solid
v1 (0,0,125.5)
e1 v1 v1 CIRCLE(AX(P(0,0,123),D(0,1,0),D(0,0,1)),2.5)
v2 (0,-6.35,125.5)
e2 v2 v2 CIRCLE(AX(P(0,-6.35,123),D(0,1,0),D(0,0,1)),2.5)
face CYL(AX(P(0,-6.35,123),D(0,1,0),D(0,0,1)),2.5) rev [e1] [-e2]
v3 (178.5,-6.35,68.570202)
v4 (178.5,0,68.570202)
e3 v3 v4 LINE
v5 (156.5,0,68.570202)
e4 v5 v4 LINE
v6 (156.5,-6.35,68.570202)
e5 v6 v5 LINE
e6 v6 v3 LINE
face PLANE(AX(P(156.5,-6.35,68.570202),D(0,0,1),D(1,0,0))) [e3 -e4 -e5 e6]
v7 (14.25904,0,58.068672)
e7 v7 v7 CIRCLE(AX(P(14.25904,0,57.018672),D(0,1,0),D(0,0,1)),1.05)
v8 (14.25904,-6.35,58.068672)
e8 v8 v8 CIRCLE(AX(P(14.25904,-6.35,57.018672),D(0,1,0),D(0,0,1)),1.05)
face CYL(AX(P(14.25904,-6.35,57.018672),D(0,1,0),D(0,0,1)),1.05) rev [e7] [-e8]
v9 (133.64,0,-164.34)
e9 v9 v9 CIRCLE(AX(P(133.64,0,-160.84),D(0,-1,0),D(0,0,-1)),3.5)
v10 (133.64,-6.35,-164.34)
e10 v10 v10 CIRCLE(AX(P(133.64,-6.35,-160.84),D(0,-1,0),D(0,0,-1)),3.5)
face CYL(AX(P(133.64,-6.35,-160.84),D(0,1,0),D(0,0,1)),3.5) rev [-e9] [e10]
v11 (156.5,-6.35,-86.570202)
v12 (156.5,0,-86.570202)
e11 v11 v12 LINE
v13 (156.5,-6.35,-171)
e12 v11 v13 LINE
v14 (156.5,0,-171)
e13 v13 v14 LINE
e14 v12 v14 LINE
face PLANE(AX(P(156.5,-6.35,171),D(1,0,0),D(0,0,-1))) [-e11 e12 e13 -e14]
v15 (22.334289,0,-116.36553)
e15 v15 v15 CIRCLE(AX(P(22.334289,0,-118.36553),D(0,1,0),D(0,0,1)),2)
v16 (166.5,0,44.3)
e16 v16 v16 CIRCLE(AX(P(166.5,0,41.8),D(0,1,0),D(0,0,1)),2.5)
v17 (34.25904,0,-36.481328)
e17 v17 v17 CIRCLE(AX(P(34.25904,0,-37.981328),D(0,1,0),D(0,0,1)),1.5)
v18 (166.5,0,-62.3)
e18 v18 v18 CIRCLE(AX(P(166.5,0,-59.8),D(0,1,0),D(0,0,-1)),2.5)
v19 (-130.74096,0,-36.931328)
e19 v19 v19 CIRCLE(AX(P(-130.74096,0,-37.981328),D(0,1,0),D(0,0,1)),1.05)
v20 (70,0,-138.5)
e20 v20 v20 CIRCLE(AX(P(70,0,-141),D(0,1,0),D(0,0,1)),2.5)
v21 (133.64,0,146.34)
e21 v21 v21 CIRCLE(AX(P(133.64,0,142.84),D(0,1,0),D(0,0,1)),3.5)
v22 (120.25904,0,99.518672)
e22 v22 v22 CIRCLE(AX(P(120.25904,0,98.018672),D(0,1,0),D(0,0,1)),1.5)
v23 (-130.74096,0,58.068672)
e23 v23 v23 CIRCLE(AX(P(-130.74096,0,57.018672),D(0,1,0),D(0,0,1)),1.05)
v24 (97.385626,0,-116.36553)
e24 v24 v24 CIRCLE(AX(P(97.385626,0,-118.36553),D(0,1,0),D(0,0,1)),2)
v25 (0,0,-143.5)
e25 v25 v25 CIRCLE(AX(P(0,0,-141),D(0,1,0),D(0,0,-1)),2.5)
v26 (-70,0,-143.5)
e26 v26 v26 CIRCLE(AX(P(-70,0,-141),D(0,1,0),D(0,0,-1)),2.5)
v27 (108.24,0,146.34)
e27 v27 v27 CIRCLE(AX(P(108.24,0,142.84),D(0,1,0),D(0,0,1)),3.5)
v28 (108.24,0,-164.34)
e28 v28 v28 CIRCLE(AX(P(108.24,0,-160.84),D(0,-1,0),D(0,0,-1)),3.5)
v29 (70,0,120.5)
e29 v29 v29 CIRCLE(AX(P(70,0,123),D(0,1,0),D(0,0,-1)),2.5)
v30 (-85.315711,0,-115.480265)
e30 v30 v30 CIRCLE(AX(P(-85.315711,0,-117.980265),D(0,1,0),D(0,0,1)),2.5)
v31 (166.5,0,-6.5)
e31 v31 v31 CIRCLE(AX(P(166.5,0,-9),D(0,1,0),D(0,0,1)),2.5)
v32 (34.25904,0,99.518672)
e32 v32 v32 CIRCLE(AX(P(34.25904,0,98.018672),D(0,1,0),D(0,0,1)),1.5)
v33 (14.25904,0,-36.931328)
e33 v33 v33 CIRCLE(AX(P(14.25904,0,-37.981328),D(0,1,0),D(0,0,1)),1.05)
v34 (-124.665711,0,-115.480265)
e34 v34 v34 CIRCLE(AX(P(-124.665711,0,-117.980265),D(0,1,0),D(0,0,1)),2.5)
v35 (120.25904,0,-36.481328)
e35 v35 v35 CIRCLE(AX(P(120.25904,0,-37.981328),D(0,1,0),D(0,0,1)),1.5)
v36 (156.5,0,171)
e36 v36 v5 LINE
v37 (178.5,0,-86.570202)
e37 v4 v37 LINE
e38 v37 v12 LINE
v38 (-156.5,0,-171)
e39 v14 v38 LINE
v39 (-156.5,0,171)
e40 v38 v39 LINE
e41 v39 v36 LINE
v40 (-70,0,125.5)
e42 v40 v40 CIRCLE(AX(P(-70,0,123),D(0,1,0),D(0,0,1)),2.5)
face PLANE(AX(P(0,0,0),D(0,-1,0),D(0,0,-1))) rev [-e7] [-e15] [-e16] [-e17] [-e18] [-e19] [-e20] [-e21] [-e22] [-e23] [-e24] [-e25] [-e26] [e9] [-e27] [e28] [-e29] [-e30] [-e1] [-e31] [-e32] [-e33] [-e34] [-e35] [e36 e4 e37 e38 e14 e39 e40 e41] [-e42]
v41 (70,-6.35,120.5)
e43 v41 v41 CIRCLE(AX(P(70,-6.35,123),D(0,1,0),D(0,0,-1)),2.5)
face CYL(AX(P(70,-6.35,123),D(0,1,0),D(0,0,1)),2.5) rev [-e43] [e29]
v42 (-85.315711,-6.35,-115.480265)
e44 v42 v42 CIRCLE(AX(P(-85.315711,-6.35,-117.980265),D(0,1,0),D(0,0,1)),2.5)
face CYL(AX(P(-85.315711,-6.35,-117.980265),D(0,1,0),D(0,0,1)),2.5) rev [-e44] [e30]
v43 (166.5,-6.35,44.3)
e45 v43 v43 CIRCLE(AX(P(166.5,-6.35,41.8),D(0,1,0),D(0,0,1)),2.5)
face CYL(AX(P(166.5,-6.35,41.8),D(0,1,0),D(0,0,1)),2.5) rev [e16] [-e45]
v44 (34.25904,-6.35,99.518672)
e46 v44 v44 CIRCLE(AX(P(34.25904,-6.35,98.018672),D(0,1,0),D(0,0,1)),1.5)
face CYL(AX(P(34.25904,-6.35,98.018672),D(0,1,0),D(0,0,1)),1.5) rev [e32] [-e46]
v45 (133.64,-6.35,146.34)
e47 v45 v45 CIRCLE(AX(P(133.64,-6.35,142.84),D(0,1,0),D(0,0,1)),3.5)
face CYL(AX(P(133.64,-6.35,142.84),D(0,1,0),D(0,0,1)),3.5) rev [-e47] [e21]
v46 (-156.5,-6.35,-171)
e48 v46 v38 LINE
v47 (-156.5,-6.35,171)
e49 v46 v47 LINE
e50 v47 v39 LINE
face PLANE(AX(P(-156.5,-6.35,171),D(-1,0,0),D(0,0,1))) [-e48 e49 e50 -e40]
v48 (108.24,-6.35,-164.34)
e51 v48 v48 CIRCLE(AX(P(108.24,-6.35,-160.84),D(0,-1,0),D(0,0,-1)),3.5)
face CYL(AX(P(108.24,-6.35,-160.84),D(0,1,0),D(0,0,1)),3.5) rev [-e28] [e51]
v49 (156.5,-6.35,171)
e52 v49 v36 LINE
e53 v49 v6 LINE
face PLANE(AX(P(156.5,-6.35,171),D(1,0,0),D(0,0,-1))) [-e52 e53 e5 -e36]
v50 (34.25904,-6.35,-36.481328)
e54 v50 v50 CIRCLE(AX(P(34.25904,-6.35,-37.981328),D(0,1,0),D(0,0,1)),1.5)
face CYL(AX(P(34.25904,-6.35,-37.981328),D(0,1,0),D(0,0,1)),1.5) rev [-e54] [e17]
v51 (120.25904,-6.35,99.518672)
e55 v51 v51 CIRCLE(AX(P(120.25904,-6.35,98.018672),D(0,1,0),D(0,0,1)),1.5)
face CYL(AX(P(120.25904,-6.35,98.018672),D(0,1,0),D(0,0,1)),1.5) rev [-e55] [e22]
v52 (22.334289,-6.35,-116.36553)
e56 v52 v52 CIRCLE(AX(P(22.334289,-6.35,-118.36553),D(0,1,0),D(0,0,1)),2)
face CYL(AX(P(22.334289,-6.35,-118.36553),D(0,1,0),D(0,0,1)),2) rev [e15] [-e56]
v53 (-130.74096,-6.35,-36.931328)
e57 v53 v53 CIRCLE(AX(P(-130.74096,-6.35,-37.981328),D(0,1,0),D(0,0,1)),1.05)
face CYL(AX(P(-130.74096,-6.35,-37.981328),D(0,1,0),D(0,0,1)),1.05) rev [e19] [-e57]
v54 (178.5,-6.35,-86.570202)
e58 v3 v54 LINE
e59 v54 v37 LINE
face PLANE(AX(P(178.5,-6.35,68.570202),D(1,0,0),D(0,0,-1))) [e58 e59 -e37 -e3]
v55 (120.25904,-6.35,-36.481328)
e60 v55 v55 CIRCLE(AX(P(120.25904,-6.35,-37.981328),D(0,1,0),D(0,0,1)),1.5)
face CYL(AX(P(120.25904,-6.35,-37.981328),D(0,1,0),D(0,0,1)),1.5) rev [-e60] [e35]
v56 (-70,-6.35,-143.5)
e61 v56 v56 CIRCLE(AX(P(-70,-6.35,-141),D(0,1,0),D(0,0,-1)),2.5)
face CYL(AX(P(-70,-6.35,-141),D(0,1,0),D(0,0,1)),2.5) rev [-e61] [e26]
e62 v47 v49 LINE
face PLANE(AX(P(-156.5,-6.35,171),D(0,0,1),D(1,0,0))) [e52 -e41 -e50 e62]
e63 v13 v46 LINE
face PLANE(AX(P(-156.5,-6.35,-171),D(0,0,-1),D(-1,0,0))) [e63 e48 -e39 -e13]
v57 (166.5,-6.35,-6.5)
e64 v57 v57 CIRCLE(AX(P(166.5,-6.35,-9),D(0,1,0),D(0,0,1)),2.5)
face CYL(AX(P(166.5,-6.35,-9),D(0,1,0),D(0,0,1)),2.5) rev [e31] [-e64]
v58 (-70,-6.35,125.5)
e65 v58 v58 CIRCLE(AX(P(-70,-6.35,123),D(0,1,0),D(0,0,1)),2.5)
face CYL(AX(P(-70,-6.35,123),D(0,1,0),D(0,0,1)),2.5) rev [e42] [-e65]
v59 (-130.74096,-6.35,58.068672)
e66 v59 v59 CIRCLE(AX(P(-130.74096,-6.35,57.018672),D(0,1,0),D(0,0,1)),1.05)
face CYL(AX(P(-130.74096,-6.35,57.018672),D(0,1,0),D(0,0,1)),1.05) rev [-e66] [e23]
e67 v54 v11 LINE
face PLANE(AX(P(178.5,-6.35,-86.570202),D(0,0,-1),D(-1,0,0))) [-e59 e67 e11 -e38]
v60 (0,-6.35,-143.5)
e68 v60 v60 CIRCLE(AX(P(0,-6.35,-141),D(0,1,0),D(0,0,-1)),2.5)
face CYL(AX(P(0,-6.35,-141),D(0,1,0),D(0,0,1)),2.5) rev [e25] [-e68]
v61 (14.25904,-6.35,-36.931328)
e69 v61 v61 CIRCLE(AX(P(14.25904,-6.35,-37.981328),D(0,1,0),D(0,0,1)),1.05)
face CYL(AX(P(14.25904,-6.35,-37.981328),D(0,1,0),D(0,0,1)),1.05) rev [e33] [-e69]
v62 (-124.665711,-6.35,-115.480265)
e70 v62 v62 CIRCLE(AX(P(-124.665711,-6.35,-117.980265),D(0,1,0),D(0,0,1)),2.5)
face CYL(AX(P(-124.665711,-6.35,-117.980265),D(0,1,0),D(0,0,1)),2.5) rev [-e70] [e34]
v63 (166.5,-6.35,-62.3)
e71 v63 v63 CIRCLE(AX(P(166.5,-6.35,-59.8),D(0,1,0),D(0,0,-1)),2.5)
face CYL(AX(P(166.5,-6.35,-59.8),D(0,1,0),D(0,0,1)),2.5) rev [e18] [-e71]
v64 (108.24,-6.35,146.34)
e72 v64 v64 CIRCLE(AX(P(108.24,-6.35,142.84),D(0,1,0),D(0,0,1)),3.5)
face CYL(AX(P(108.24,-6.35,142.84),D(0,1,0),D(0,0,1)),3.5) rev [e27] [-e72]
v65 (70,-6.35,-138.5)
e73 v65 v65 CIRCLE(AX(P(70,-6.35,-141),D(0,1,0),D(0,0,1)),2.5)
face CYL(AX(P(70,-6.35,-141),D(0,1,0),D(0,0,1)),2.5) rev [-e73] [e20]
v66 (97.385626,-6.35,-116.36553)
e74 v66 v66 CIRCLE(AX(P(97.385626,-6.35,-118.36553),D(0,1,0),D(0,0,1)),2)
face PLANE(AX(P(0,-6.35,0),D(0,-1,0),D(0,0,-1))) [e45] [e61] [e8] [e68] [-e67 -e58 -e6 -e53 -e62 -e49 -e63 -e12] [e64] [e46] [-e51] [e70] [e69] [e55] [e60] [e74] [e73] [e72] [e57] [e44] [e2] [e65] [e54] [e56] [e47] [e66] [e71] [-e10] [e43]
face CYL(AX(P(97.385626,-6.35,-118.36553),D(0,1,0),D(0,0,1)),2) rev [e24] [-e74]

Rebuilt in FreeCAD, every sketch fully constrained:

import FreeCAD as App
import Part
import Sketcher
Q = App.Units.Quantity


def add_polygon(sketch, points):
    """Adds a closed chain of lines whose ends are joined by coincident constraints."""
    first, n = sketch.GeometryCount, len(points)
    for a, b in zip(points, points[1:] + points[:1]):
        sketch.addGeometry(Part.LineSegment(App.Vector(*a, 0), App.Vector(*b, 0)), False)
    for i in range(n):
        sketch.addConstraint(Sketcher.Constraint("Coincident", first + i, 2, first + (i + 1) % n, 1))

doc = App.newDocument("Part")
body = doc.addObject("PartDesign::Body", "Body")

sketch1 = body.newObject("Sketcher::SketchObject", "Sketch")
sketch1.AttachmentSupport = (doc.getObject("XZ_Plane"), [""])
sketch1.MapMode = "FlatFace"
add_polygon(sketch1, [(-156, -171), (-156, 171), (156, 171), (156, -171)])
sketch1.addConstraint([
    Sketcher.Constraint("Vertical", 0),
    Sketcher.Constraint("Horizontal", 1),
    Sketcher.Constraint("Vertical", 2),
    Sketcher.Constraint("Horizontal", 3),
    Sketcher.Constraint("Symmetric", 0, 2, 2, 2, -1, 1),
    Sketcher.Constraint("DistanceX", 1, 1, 1, 2, Q("313 mm")),
    Sketcher.Constraint("DistanceY", 0, 1, 0, 2, Q("342 mm")),
])
pad1 = body.newObject("PartDesign::Pad", "Pad")
pad1.Profile = sketch1
pad1.Length = 6.35

sketch2 = body.newObject("Sketcher::SketchObject", "Sketch001")
sketch2.AttachmentSupport = (doc.getObject("XZ_Plane"), [""])
sketch2.MapMode = "FlatFace"
add_polygon(sketch2, [(156.5, -86.6), (156.5, 68.6), (178.5, 68.6), (178.5, -86.6)])
sketch2.addGeometry(Part.Circle(App.Vector(166.5, 41.8, 0), App.Vector(0, 0, 1), 2.5), False)
sketch2.addGeometry(Part.Circle(App.Vector(166.5, -9, 0), App.Vector(0, 0, 1), 2.5), False)
sketch2.addGeometry(Part.Circle(App.Vector(166.5, -59.8, 0), App.Vector(0, 0, 1), 2.5), False)
sketch2.addConstraint([
    Sketcher.Constraint("Vertical", 0),
    Sketcher.Constraint("Horizontal", 1),
    Sketcher.Constraint("Vertical", 2),
    Sketcher.Constraint("Horizontal", 3),
    Sketcher.Constraint("Equal", 4, 5),
    Sketcher.Constraint("Equal", 5, 6),
    Sketcher.Constraint("Vertical", 4, 3, 5, 3),
    Sketcher.Constraint("Vertical", 5, 3, 6, 3),
    Sketcher.Constraint("Diameter", 4, Q("5 mm")),
    Sketcher.Constraint("DistanceX", 1, 1, 1, 2, Q("22 mm")),
    Sketcher.Constraint("DistanceY", 5, 3, -1, 1, Q("9 mm")),
    Sketcher.Constraint("DistanceX", 0, 2, 4, 3, Q("10 mm")),
    Sketcher.Constraint("DistanceX", -1, 1, 4, 3, Q("166.5 mm")),
    Sketcher.Constraint("DistanceY", -1, 1, 4, 3, Q("41.8 mm")),
    Sketcher.Constraint("DistanceY", 6, 3, -1, 1, Q("59.8 mm")),
    Sketcher.Constraint("DistanceY", -1, 1, 0, 2, Q("68.570202 mm")),
    Sketcher.Constraint("DistanceY", 2, 2, -1, 1, Q("86.570202 mm")),
])
pad2 = body.newObject("PartDesign::Pad", "Pad001")
pad2.Profile = sketch2
pad2.Length = 6.35

sketch3 = body.newObject("Sketcher::SketchObject", "Sketch002")
sketch3.AttachmentSupport = (doc.getObject("XZ_Plane"), [""])
sketch3.MapMode = "FlatFace"
sketch3.addGeometry([
    Part.Circle(App.Vector(0, 123, 0), App.Vector(0, 0, 1), 2.5),
    Part.Circle(App.Vector(-70, 123, 0), App.Vector(0, 0, 1), 2.5),
    Part.Circle(App.Vector(70, 123, 0), App.Vector(0, 0, 1), 2.5),
    Part.Circle(App.Vector(-70, -141, 0), App.Vector(0, 0, 1), 2.5),
    Part.Circle(App.Vector(0, -141, 0), App.Vector(0, 0, 1), 2.5),
    Part.Circle(App.Vector(70, -141, 0), App.Vector(0, 0, 1), 2.5),
], False)
sketch3.addConstraint([
    Sketcher.Constraint("Equal", 0, 1),
    Sketcher.Constraint("Equal", 1, 2),
    Sketcher.Constraint("Equal", 2, 3),
    Sketcher.Constraint("Equal", 3, 4),
    Sketcher.Constraint("Equal", 4, 5),
    Sketcher.Constraint("Symmetric", 1, 3, 2, 3, -2),
    Sketcher.Constraint("Symmetric", 3, 3, 5, 3, -2),
    Sketcher.Constraint("PointOnObject", 0, 3, -2),
    Sketcher.Constraint("PointOnObject", 4, 3, -2),
    Sketcher.Constraint("Horizontal", 0, 3, 1, 3),
    Sketcher.Constraint("Horizontal", 3, 3, 4, 3),
    Sketcher.Constraint("Vertical", 1, 3, 3, 3),
    Sketcher.Constraint("Diameter", 0, Q("5 mm")),
    Sketcher.Constraint("DistanceY", -1, 1, 0, 3, Q("123 mm")),
    Sketcher.Constraint("DistanceX", 1, 3, -1, 1, Q("70 mm")),
    Sketcher.Constraint("DistanceY", 3, 3, -1, 1, Q("141 mm")),
])
pocket1 = body.newObject("PartDesign::Pocket", "Pocket")
pocket1.Profile = sketch3
pocket1.Type = "ThroughAll"
pocket1.Reversed = True

sketch4 = body.newObject("Sketcher::SketchObject", "Sketch003")
sketch4.AttachmentSupport = (doc.getObject("XZ_Plane"), [""])
sketch4.MapMode = "FlatFace"
sketch4.addGeometry([
    Part.Circle(App.Vector(133.6, 142.8, 0), App.Vector(0, 0, 1), 3.5),
    Part.Circle(App.Vector(108.2, 142.8, 0), App.Vector(0, 0, 1), 3.5),
], False)
sketch4.addConstraint([
    Sketcher.Constraint("Equal", 0, 1),
    Sketcher.Constraint("Horizontal", 0, 3, 1, 3),
    Sketcher.Constraint("Diameter", 0, Q("7 mm")),
    Sketcher.Constraint("DistanceX", 1, 3, 0, 3, Q("25.4 mm")),
    Sketcher.Constraint("DistanceX", -1, 1, 0, 3, Q("133.64 mm")),
    Sketcher.Constraint("DistanceY", -1, 1, 0, 3, Q("142.84 mm")),
])
pocket2 = body.newObject("PartDesign::Pocket", "Pocket001")
pocket2.Profile = sketch4
pocket2.Type = "ThroughAll"
pocket2.Reversed = True
doc.recompute()

datumplane = body.newObject("PartDesign::Plane", "DatumPlane")
datumplane.AttachmentSupport = (doc.getObject("XY_Plane"), [""])
datumplane.MapMode = "FlatFace"
datumplane.AttachmentOffset = App.Placement(App.Vector(0, 0, -9), App.Rotation())
mirrored = body.newObject("PartDesign::Mirrored", "Mirrored")
mirrored.Originals = [pocket2]
mirrored.MirrorPlane = (datumplane, [""])
body.Tip = mirrored

sketch5 = body.newObject("Sketcher::SketchObject", "Sketch004")
sketch5.AttachmentSupport = (doc.getObject("XZ_Plane"), [""])
sketch5.MapMode = "FlatFace"
sketch5.addGeometry([
    Part.Circle(App.Vector(97.4, -118.4, 0), App.Vector(0, 0, 1), 2),
    Part.Circle(App.Vector(22.3, -118.4, 0), App.Vector(0, 0, 1), 2),
    Part.Circle(App.Vector(120.3, 98, 0), App.Vector(0, 0, 1), 1.5),
    Part.Circle(App.Vector(34.3, 98, 0), App.Vector(0, 0, 1), 1.5),
    Part.Circle(App.Vector(34.3, -38, 0), App.Vector(0, 0, 1), 1.5),
    Part.Circle(App.Vector(120.3, -38, 0), App.Vector(0, 0, 1), 1.5),
    Part.Circle(App.Vector(14.3, 57, 0), App.Vector(0, 0, 1), 1.1),
    Part.Circle(App.Vector(-130.7, 57, 0), App.Vector(0, 0, 1), 1.1),
    Part.Circle(App.Vector(14.3, -38, 0), App.Vector(0, 0, 1), 1.1),
    Part.Circle(App.Vector(-130.7, -38, 0), App.Vector(0, 0, 1), 1.1),
    Part.Circle(App.Vector(-85.3, -118, 0), App.Vector(0, 0, 1), 2.5),
    Part.Circle(App.Vector(-124.7, -118, 0), App.Vector(0, 0, 1), 2.5),
], False)
sketch5.addConstraint([
    Sketcher.Constraint("Equal", 0, 1),
    Sketcher.Constraint("Equal", 2, 3),
    Sketcher.Constraint("Equal", 3, 4),
    Sketcher.Constraint("Equal", 4, 5),
    Sketcher.Constraint("Equal", 6, 7),
    Sketcher.Constraint("Equal", 7, 8),
    Sketcher.Constraint("Equal", 8, 9),
    Sketcher.Constraint("Equal", 10, 11),
    Sketcher.Constraint("Horizontal", 0, 3, 1, 3),
    Sketcher.Constraint("Horizontal", 2, 3, 3, 3),
    Sketcher.Constraint("Horizontal", 4, 3, 5, 3),
    Sketcher.Constraint("Horizontal", 6, 3, 7, 3),
    Sketcher.Constraint("Horizontal", 5, 3, 8, 3),
    Sketcher.Constraint("Horizontal", 8, 3, 9, 3),
    Sketcher.Constraint("Horizontal", 10, 3, 11, 3),
    Sketcher.Constraint("Vertical", 3, 3, 4, 3),
    Sketcher.Constraint("Vertical", 2, 3, 5, 3),
    Sketcher.Constraint("Vertical", 6, 3, 8, 3),
    Sketcher.Constraint("Vertical", 7, 3, 9, 3),
    Sketcher.Constraint("Diameter", 0, Q("4 mm")),
    Sketcher.Constraint("Diameter", 2, Q("3 mm")),
    Sketcher.Constraint("Diameter", 10, Q("5 mm")),
    Sketcher.Constraint("Diameter", 6, Q("2.1 mm")),
    Sketcher.Constraint("DistanceX", 3, 3, 2, 3, Q("86 mm")),
    Sketcher.Constraint("DistanceY", 4, 3, 3, 3, Q("136 mm")),
    Sketcher.Constraint("DistanceX", 6, 3, 3, 3, Q("20 mm")),
    Sketcher.Constraint("DistanceY", 6, 3, 3, 3, Q("41 mm")),
    Sketcher.Constraint("DistanceX", 7, 3, 6, 3, Q("145 mm")),
    Sketcher.Constraint("DistanceX", 11, 3, 1, 3, Q("147 mm")),
    Sketcher.Constraint("DistanceX", 10, 3, 1, 3, Q("107.65 mm")),
    Sketcher.Constraint("DistanceY", 0, 3, 2, 3, Q("216.384202 mm")),
    Sketcher.Constraint("DistanceY", 0, 3, -1, 1, Q("118.36553 mm")),
    Sketcher.Constraint("DistanceX", -1, 1, 1, 3, Q("22.334289 mm")),
    Sketcher.Constraint("DistanceX", -1, 1, 2, 3, Q("120.25904 mm")),
    Sketcher.Constraint("DistanceX", -1, 1, 0, 3, Q("97.385626 mm")),
    Sketcher.Constraint("DistanceY", 10, 3, -1, 1, Q("117.980265 mm")),
])
pocket3 = body.newObject("PartDesign::Pocket", "Pocket002")
pocket3.Profile = sketch5
pocket3.Type = "ThroughAll"
pocket3.Reversed = True

doc.recompute()
